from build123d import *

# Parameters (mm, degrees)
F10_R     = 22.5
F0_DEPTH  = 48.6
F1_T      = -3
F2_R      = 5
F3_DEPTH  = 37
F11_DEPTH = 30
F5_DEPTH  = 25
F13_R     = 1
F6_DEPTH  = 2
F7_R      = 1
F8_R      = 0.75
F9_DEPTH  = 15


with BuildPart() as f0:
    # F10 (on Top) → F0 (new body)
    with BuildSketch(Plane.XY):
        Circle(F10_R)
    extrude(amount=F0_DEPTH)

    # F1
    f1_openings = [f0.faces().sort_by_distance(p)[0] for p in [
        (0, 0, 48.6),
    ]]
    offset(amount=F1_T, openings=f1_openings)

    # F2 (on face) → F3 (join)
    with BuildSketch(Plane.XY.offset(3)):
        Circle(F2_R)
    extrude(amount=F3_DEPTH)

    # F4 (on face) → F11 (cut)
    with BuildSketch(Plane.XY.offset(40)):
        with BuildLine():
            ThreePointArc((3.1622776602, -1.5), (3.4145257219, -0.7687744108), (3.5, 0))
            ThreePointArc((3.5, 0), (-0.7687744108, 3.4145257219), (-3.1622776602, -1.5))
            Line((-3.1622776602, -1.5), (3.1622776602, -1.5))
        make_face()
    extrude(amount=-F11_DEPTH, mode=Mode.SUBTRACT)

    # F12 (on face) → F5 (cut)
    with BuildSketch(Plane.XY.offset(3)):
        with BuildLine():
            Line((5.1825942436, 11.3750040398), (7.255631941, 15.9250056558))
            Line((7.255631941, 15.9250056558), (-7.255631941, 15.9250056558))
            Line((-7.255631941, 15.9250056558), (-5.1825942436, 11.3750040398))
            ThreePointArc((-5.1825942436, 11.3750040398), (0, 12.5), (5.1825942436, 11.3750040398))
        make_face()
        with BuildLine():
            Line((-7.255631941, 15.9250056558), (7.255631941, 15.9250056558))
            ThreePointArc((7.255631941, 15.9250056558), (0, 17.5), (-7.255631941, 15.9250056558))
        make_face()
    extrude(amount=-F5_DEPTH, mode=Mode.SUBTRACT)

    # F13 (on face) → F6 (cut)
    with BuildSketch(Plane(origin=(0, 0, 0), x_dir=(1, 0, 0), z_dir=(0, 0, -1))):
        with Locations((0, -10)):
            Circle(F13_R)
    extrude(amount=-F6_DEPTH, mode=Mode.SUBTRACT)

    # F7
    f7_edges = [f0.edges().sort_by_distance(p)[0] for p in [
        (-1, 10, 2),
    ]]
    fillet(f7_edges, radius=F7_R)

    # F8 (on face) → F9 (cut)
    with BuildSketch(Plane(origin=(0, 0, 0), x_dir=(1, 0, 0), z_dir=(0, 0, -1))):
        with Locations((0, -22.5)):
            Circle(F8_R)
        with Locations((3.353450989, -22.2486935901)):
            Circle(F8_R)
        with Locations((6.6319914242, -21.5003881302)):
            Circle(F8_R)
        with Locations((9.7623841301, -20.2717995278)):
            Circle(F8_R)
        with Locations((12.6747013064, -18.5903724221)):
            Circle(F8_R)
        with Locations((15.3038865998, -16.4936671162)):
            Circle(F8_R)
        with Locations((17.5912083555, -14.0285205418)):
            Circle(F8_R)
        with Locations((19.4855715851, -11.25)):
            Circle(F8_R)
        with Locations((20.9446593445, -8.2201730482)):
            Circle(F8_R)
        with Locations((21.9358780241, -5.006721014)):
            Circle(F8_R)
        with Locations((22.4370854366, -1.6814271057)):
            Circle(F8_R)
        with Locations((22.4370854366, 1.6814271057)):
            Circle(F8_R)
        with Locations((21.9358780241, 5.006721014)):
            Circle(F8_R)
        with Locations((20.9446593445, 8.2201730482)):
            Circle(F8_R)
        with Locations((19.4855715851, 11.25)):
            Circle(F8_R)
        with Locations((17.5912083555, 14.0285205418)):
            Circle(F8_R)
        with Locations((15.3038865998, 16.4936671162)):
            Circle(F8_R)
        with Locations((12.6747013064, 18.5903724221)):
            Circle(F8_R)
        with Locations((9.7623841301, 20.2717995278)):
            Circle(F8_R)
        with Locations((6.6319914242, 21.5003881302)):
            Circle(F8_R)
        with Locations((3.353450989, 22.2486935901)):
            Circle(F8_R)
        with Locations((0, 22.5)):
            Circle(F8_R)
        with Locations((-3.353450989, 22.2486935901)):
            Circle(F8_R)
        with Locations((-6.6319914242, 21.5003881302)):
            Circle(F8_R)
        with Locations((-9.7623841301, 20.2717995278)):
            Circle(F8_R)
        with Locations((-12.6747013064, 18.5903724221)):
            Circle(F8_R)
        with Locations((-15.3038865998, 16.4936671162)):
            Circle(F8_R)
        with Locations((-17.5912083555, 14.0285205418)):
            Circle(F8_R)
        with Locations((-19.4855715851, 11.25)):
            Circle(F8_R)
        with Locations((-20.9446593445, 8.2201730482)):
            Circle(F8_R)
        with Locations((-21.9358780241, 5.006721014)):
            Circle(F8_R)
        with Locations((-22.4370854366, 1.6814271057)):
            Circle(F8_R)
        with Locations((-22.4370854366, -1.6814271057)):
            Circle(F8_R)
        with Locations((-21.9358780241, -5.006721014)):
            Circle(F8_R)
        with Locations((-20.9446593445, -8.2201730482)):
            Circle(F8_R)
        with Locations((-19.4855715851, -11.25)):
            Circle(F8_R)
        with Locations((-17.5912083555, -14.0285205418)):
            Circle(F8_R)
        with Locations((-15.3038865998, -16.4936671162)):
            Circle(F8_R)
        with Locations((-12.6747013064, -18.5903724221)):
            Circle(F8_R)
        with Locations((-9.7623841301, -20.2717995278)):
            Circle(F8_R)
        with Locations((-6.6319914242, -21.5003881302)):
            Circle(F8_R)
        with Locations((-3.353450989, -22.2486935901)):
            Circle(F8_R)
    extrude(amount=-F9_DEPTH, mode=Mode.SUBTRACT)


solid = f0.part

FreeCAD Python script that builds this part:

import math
import FreeCAD as App
import Part
import Sketcher
from FreeCAD import Vector
Q = App.Units.Quantity


def edges_at(feature, points):
    """Names of the edges that pass closest to the given points."""
    edges = feature.Shape.Edges
    near = lambda p: min(range(len(edges)), key=lambda i: edges[i].distToShape(Part.Vertex(*p))[0])
    return sorted({f"Edge{near(p) + 1}" for p in points})


def faces_at(feature, points):
    """Names of the faces that lie closest to the given points."""
    faces = feature.Shape.Faces
    near = lambda p: min(range(len(faces)), key=lambda i: faces[i].distToShape(Part.Vertex(*p))[0])
    return sorted({f"Face{near(p) + 1}" for p in points})

doc = App.newDocument("Part")
body = doc.addObject("PartDesign::Body", "Body")

sketch1 = body.newObject("Sketcher::SketchObject", "Sketch")
sketch1.AttachmentSupport = (doc.getObject("XY_Plane"), [""])
sketch1.MapMode = "FlatFace"
sketch1.addGeometry(Part.Circle(Vector(0, 0, 0), Vector(0, 0, 1), 22.5), False)
sketch1.addConstraint(Sketcher.Constraint("Coincident", 0, 3, -1, 1))
sketch1.addConstraint(Sketcher.Constraint("Diameter", 0, Q("45 mm")))
pad1 = body.newObject("PartDesign::Pad", "Pad")
pad1.Profile = sketch1
pad1.Length = 48.6
doc.recompute()

thickness = body.newObject("PartDesign::Thickness", "Thickness")
thickness.Base = (pad1, faces_at(pad1, [(0, 0, 48.6)]))
thickness.Value = 3
thickness.Reversed = True
thickness.Join = "Arc"

sketch2 = body.newObject("Sketcher::SketchObject", "Sketch001")
sketch2.AttachmentSupport = (doc.getObject("XY_Plane"), [""])
sketch2.MapMode = "FlatFace"
sketch2.AttachmentOffset = App.Placement(Vector(0, 0, 3), App.Rotation())
sketch2.addGeometry(Part.Circle(Vector(0, 0, 0), Vector(0, 0, 1), 5), False)
sketch2.addConstraint(Sketcher.Constraint("Coincident", 0, 3, -1, 1))
sketch2.addConstraint(Sketcher.Constraint("Diameter", 0, Q("10 mm")))
pad2 = body.newObject("PartDesign::Pad", "Pad001")
pad2.Profile = sketch2
pad2.Length = 37

sketch3 = body.newObject("Sketcher::SketchObject", "Sketch002")
sketch3.AttachmentSupport = (doc.getObject("XY_Plane"), [""])
sketch3.MapMode = "FlatFace"
sketch3.AttachmentOffset = App.Placement(Vector(0, 0, 40), App.Rotation())
sketch3.addGeometry(Part.ArcOfCircle(Part.Circle(Vector(0, 0, 0), Vector(0, 0, 1), 3.5), math.radians(-25.376934), math.radians(0)), False)
sketch3.addGeometry(Part.ArcOfCircle(Part.Circle(Vector(0, 0, 0), Vector(0, 0, 1), 3.5), math.radians(0), math.radians(205.376934)), False)
sketch3.addGeometry(Part.LineSegment(Vector(-3.162278, -1.5, 0), Vector(3.162278, -1.5, 0)), False)
sketch3.addConstraint(Sketcher.Constraint("Tangent", 0, 2, 1, 1))
sketch3.addConstraint(Sketcher.Constraint("Coincident", 1, 2, 2, 1))
sketch3.addConstraint(Sketcher.Constraint("Coincident", 2, 2, 0, 1))
sketch3.addConstraint(Sketcher.Constraint("Horizontal", 2))
sketch3.addConstraint(Sketcher.Constraint("Coincident", 0, 3, -1, 1))
sketch3.addConstraint(Sketcher.Constraint("Equal", 0, 1))
sketch3.addConstraint(Sketcher.Constraint("PointOnObject", 0, 2, -1))
sketch3.addConstraint(Sketcher.Constraint("Radius", 0, Q("3.5 mm")))
sketch3.addConstraint(Sketcher.Constraint("DistanceY", 1, 2, -1, 1, Q("1.5 mm")))
pocket1 = body.newObject("PartDesign::Pocket", "Pocket")
pocket1.Profile = sketch3
pocket1.Length = 30

sketch4 = body.newObject("Sketcher::SketchObject", "Sketch003")
sketch4.AttachmentSupport = (doc.getObject("XY_Plane"), [""])
sketch4.MapMode = "FlatFace"
sketch4.AttachmentOffset = App.Placement(Vector(0, 0, 3), App.Rotation())
sketch4.addGeometry(Part.LineSegment(Vector(5.182594, 11.375004, 0), Vector(7.255632, 15.925006, 0)), False)
sketch4.addGeometry(Part.ArcOfCircle(Part.Circle(Vector(0, 0, 0), Vector(0, 0, 1), 17.5), math.radians(65.505396), math.radians(114.494604)), False)
sketch4.addGeometry(Part.LineSegment(Vector(-7.255632, 15.925006, 0), Vector(-5.182594, 11.375004, 0)), False)
sketch4.addGeometry(Part.ArcOfCircle(Part.Circle(Vector(0, 0, 0), Vector(0, 0, 1), 12.5), math.radians(65.505396), math.radians(114.494604)), False)
sketch4.addConstraint(Sketcher.Constraint("Coincident", 0, 2, 1, 1))
sketch4.addConstraint(Sketcher.Constraint("Coincident", 1, 2, 2, 1))
sketch4.addConstraint(Sketcher.Constraint("Coincident", 2, 2, 3, 2))
sketch4.addConstraint(Sketcher.Constraint("Coincident", 3, 1, 0, 1))
sketch4.addConstraint(Sketcher.Constraint("Coincident", 1, 3, -1, 1))
sketch4.addConstraint(Sketcher.Constraint("Coincident", 3, 3, -1, 1))
sketch4.addConstraint(Sketcher.Constraint("Horizontal", 0, 2, 1, 2))
sketch4.addConstraint(Sketcher.Constraint("Horizontal", 2, 2, 3, 1))
sketch4.addConstraint(Sketcher.Constraint("Radius", 1, Q("17.5 mm")))
sketch4.addConstraint(Sketcher.Constraint("Radius", 3, Q("12.5 mm")))
sketch4.addConstraint(Sketcher.Constraint("DistanceY", 2, 2, 1, 2, Q("4.550002 mm")))
sketch4.addConstraint(Sketcher.Constraint("DistanceX", -1, 1, 0, 2, Q("7.255632 mm")))
pocket2 = body.newObject("PartDesign::Pocket", "Pocket001")
pocket2.Profile = sketch4
pocket2.Length = 25

sketch5 = body.newObject("Sketcher::SketchObject", "Sketch004")
sketch5.AttachmentSupport = (doc.getObject("XY_Plane"), [""])
sketch5.MapMode = "FlatFace"
sketch5.addGeometry(Part.Circle(Vector(0, 10, 0), Vector(0, 0, 1), 1), False)
sketch5.addConstraint(Sketcher.Constraint("PointOnObject", 0, 3, -2))
sketch5.addConstraint(Sketcher.Constraint("Diameter", 0, Q("2 mm")))
sketch5.addConstraint(Sketcher.Constraint("DistanceY", -1, 1, 0, 3, Q("10 mm")))
pocket3 = body.newObject("PartDesign::Pocket", "Pocket002")
pocket3.Profile = sketch5
pocket3.Length = 2
pocket3.Reversed = True
doc.recompute()

fillet = body.newObject("PartDesign::Fillet", "Fillet")
fillet.Base = (pocket3, edges_at(pocket3, [(-1, 10, 2)]))
fillet.Radius = 1

sketch6 = body.newObject("Sketcher::SketchObject", "Sketch005")
sketch6.AttachmentSupport = (doc.getObject("XY_Plane"), [""])
sketch6.MapMode = "FlatFace"
sketch6.addGeometry(Part.Circle(Vector(0, 22.5, 0), Vector(0, 0, 1), 0.75), False)
sketch6.addGeometry(Part.Circle(Vector(3.353451, 22.248694, 0), Vector(0, 0, 1), 0.75), False)
sketch6.addGeometry(Part.Circle(Vector(6.631991, 21.500388, 0), Vector(0, 0, 1), 0.75), False)
sketch6.addGeometry(Part.Circle(Vector(9.762384, 20.2718, 0), Vector(0, 0, 1), 0.75), False)
sketch6.addGeometry(Part.Circle(Vector(12.674701, 18.590372, 0), Vector(0, 0, 1), 0.75), False)
sketch6.addGeometry(Part.Circle(Vector(15.303887, 16.493667, 0), Vector(0, 0, 1), 0.75), False)
sketch6.addGeometry(Part.Circle(Vector(17.591208, 14.028521, 0), Vector(0, 0, 1), 0.75), False)
sketch6.addGeometry(Part.Circle(Vector(19.485572, 11.25, 0), Vector(0, 0, 1), 0.75), False)
sketch6.addGeometry(Part.Circle(Vector(20.944659, 8.220173, 0), Vector(0, 0, 1), 0.75), False)
sketch6.addGeometry(Part.Circle(Vector(21.935878, 5.006721, 0), Vector(0, 0, 1), 0.75), False)
sketch6.addGeometry(Part.Circle(Vector(22.437085, 1.681427, 0), Vector(0, 0, 1), 0.75), False)
sketch6.addGeometry(Part.Circle(Vector(22.437085, -1.681427, 0), Vector(0, 0, 1), 0.75), False)
sketch6.addGeometry(Part.Circle(Vector(21.935878, -5.006721, 0), Vector(0, 0, 1), 0.75), False)
sketch6.addGeometry(Part.Circle(Vector(20.944659, -8.220173, 0), Vector(0, 0, 1), 0.75), False)
sketch6.addGeometry(Part.Circle(Vector(19.485572, -11.25, 0), Vector(0, 0, 1), 0.75), False)
sketch6.addGeometry(Part.Circle(Vector(17.591208, -14.028521, 0), Vector(0, 0, 1), 0.75), False)
sketch6.addGeometry(Part.Circle(Vector(15.303887, -16.493667, 0), Vector(0, 0, 1), 0.75), False)
sketch6.addGeometry(Part.Circle(Vector(12.674701, -18.590372, 0), Vector(0, 0, 1), 0.75), False)
sketch6.addGeometry(Part.Circle(Vector(9.762384, -20.2718, 0), Vector(0, 0, 1), 0.75), False)
sketch6.addGeometry(Part.Circle(Vector(6.631991, -21.500388, 0), Vector(0, 0, 1), 0.75), False)
sketch6.addGeometry(Part.Circle(Vector(3.353451, -22.248694, 0), Vector(0, 0, 1), 0.75), False)
sketch6.addGeometry(Part.Circle(Vector(0, -22.5, 0), Vector(0, 0, 1), 0.75), False)
sketch6.addGeometry(Part.Circle(Vector(-3.353451, -22.248694, 0), Vector(0, 0, 1), 0.75), False)
sketch6.addGeometry(Part.Circle(Vector(-6.631991, -21.500388, 0), Vector(0, 0, 1), 0.75), False)
sketch6.addGeometry(Part.Circle(Vector(-9.762384, -20.2718, 0), Vector(0, 0, 1), 0.75), False)
sketch6.addGeometry(Part.Circle(Vector(-12.674701, -18.590372, 0), Vector(0, 0, 1), 0.75), False)
sketch6.addGeometry(Part.Circle(Vector(-15.303887, -16.493667, 0), Vector(0, 0, 1), 0.75), False)
sketch6.addGeometry(Part.Circle(Vector(-17.591208, -14.028521, 0), Vector(0, 0, 1), 0.75), False)
sketch6.addGeometry(Part.Circle(Vector(-19.485572, -11.25, 0), Vector(0, 0, 1), 0.75), False)
sketch6.addGeometry(Part.Circle(Vector(-20.944659, -8.220173, 0), Vector(0, 0, 1), 0.75), False)
sketch6.addGeometry(Part.Circle(Vector(-21.935878, -5.006721, 0), Vector(0, 0, 1), 0.75), False)
sketch6.addGeometry(Part.Circle(Vector(-22.437085, -1.681427, 0), Vector(0, 0, 1), 0.75), False)
sketch6.addGeometry(Part.Circle(Vector(-22.437085, 1.681427, 0), Vector(0, 0, 1), 0.75), False)
sketch6.addGeometry(Part.Circle(Vector(-21.935878, 5.006721, 0), Vector(0, 0, 1), 0.75), False)
sketch6.addGeometry(Part.Circle(Vector(-20.944659, 8.220173, 0), Vector(0, 0, 1), 0.75), False)
sketch6.addGeometry(Part.Circle(Vector(-19.485572, 11.25, 0), Vector(0, 0, 1), 0.75), False)
sketch6.addGeometry(Part.Circle(Vector(-17.591208, 14.028521, 0), Vector(0, 0, 1), 0.75), False)
sketch6.addGeometry(Part.Circle(Vector(-15.303887, 16.493667, 0), Vector(0, 0, 1), 0.75), False)
sketch6.addGeometry(Part.Circle(Vector(-12.674701, 18.590372, 0), Vector(0, 0, 1), 0.75), False)
sketch6.addGeometry(Part.Circle(Vector(-9.762384, 20.2718, 0), Vector(0, 0, 1), 0.75), False)
sketch6.addGeometry(Part.Circle(Vector(-6.631991, 21.500388, 0), Vector(0, 0, 1), 0.75), False)
sketch6.addGeometry(Part.Circle(Vector(-3.353451, 22.248694, 0), Vector(0, 0, 1), 0.75), False)
sketch6.addConstraint(Sketcher.Constraint("Equal", 0, 1))
sketch6.addConstraint(Sketcher.Constraint("Equal", 1, 2))
sketch6.addConstraint(Sketcher.Constraint("Equal", 2, 3))
sketch6.addConstraint(Sketcher.Constraint("Equal", 3, 4))
sketch6.addConstraint(Sketcher.Constraint("Equal", 4, 5))
sketch6.addConstraint(Sketcher.Constraint("Equal", 5, 6))
sketch6.addConstraint(Sketcher.Constraint("Equal", 6, 7))
sketch6.addConstraint(Sketcher.Constraint("Equal", 7, 8))
sketch6.addConstraint(Sketcher.Constraint("Equal", 8, 9))
sketch6.addConstraint(Sketcher.Constraint("Equal", 9, 10))
sketch6.addConstraint(Sketcher.Constraint("Equal", 10, 11))
sketch6.addConstraint(Sketcher.Constraint("Equal", 11, 12))
sketch6.addConstraint(Sketcher.Constraint("Equal", 12, 13))
sketch6.addConstraint(Sketcher.Constraint("Equal", 13, 14))
sketch6.addConstraint(Sketcher.Constraint("Equal", 14, 15))
sketch6.addConstraint(Sketcher.Constraint("Equal", 15, 16))
sketch6.addConstraint(Sketcher.Constraint("Equal", 16, 17))
sketch6.addConstraint(Sketcher.Constraint("Equal", 17, 18))
sketch6.addConstraint(Sketcher.Constraint("Equal", 18, 19))
sketch6.addConstraint(Sketcher.Constraint("Equal", 19, 20))
sketch6.addConstraint(Sketcher.Constraint("Equal", 20, 21))
sketch6.addConstraint(Sketcher.Constraint("Equal", 21, 22))
sketch6.addConstraint(Sketcher.Constraint("Equal", 22, 23))
sketch6.addConstraint(Sketcher.Constraint("Equal", 23, 24))
sketch6.addConstraint(Sketcher.Constraint("Equal", 24, 25))
sketch6.addConstraint(Sketcher.Constraint("Equal", 25, 26))
sketch6.addConstraint(Sketcher.Constraint("Equal", 26, 27))
sketch6.addConstraint(Sketcher.Constraint("Equal", 27, 28))
sketch6.addConstraint(Sketcher.Constraint("Equal", 28, 29))
sketch6.addConstraint(Sketcher.Constraint("Equal", 29, 30))
sketch6.addConstraint(Sketcher.Constraint("Equal", 30, 31))
sketch6.addConstraint(Sketcher.Constraint("Equal", 31, 32))
sketch6.addConstraint(Sketcher.Constraint("Equal", 32, 33))
sketch6.addConstraint(Sketcher.Constraint("Equal", 33, 34))
sketch6.addConstraint(Sketcher.Constraint("Equal", 34, 35))
sketch6.addConstraint(Sketcher.Constraint("Equal", 35, 36))
sketch6.addConstraint(Sketcher.Constraint("Equal", 36, 37))
sketch6.addConstraint(Sketcher.Constraint("Equal", 37, 38))
sketch6.addConstraint(Sketcher.Constraint("Equal", 38, 39))
sketch6.addConstraint(Sketcher.Constraint("Equal", 39, 40))
sketch6.addConstraint(Sketcher.Constraint("Equal", 40, 41))
sketch6.addConstraint(Sketcher.Constraint("Symmetric", 0, 3, 21, 3, -1, 1))
sketch6.addConstraint(Sketcher.Constraint("Symmetric", 1, 3, 22, 3, -1, 1))
sketch6.addConstraint(Sketcher.Constraint("Symmetric", 2, 3, 23, 3, -1, 1))
sketch6.addConstraint(Sketcher.Constraint("Symmetric", 3, 3, 24, 3, -1, 1))
sketch6.addConstraint(Sketcher.Constraint("Symmetric", 4, 3, 25, 3, -1, 1))
sketch6.addConstraint(Sketcher.Constraint("Symmetric", 5, 3, 26, 3, -1, 1))
sketch6.addConstraint(Sketcher.Constraint("Symmetric", 6, 3, 27, 3, -1, 1))
sketch6.addConstraint(Sketcher.Constraint("Symmetric", 7, 3, 28, 3, -1, 1))
sketch6.addConstraint(Sketcher.Constraint("Symmetric", 8, 3, 29, 3, -1, 1))
sketch6.addConstraint(Sketcher.Constraint("Symmetric", 9, 3, 30, 3, -1, 1))
sketch6.addConstraint(Sketcher.Constraint("Symmetric", 10, 3, 31, 3, -1, 1))
sketch6.addConstraint(Sketcher.Constraint("Symmetric", 11, 3, 32, 3, -1, 1))
sketch6.addConstraint(Sketcher.Constraint("Symmetric", 12, 3, 33, 3, -1, 1))
sketch6.addConstraint(Sketcher.Constraint("Symmetric", 13, 3, 34, 3, -1, 1))
sketch6.addConstraint(Sketcher.Constraint("Symmetric", 14, 3, 35, 3, -1, 1))
sketch6.addConstraint(Sketcher.Constraint("Symmetric", 15, 3, 36, 3, -1, 1))
sketch6.addConstraint(Sketcher.Constraint("Symmetric", 16, 3, 37, 3, -1, 1))
sketch6.addConstraint(Sketcher.Constraint("Symmetric", 17, 3, 38, 3, -1, 1))
sketch6.addConstraint(Sketcher.Constraint("Symmetric", 18, 3, 39, 3, -1, 1))
sketch6.addConstraint(Sketcher.Constraint("Symmetric", 19, 3, 40, 3, -1, 1))
sketch6.addConstraint(Sketcher.Constraint("Symmetric", 20, 3, 41, 3, -1, 1))
sketch6.addConstraint(Sketcher.Constraint("Symmetric", 20, 3, 22, 3, -2))
sketch6.addConstraint(Sketcher.Constraint("Symmetric", 19, 3, 23, 3, -2))
sketch6.addConstraint(Sketcher.Constraint("Symmetric", 18, 3, 24, 3, -2))
sketch6.addConstraint(Sketcher.Constraint("Symmetric", 17, 3, 25, 3, -2))
sketch6.addConstraint(Sketcher.Constraint("Symmetric", 16, 3, 26, 3, -2))
sketch6.addConstraint(Sketcher.Constraint("Symmetric", 15, 3, 27, 3, -2))
sketch6.addConstraint(Sketcher.Constraint("Symmetric", 14, 3, 28, 3, -2))
sketch6.addConstraint(Sketcher.Constraint("Symmetric", 13, 3, 29, 3, -2))
sketch6.addConstraint(Sketcher.Constraint("Symmetric", 12, 3, 30, 3, -2))
sketch6.addConstraint(Sketcher.Constraint("Symmetric", 11, 3, 31, 3, -2))
sketch6.addConstraint(Sketcher.Constraint("PointOnObject", 0, 3, -2))
sketch6.addConstraint(Sketcher.Constraint("Diameter", 0, Q("1.5 mm")))
sketch6.addConstraint(Sketcher.Constraint("DistanceY", -1, 1, 0, 3, Q("22.5 mm")))
sketch6.addConstraint(Sketcher.Constraint("DistanceY", -1, 1, 7, 3, Q("11.25 mm")))
sketch6.addConstraint(Sketcher.Constraint("DistanceY", -1, 1, 3, 3, Q("20.2718 mm")))
sketch6.addConstraint(Sketcher.Constraint("DistanceX", -1, 1, 4, 3, Q("12.674701 mm")))
sketch6.addConstraint(Sketcher.Constraint("DistanceY", 8, 3, 4, 3, Q("10.370199 mm")))
sketch6.addConstraint(Sketcher.Constraint("DistanceY", 9, 3, 6, 3, Q("9.0218 mm")))
sketch6.addConstraint(Sketcher.Constraint("DistanceX", 5, 3, 10, 3, Q("7.133199 mm")))
sketch6.addConstraint(Sketcher.Constraint("DistanceY", 11, 3, 8, 3, Q("9.9016 mm")))
sketch6.addConstraint(Sketcher.Constraint("DistanceX", 22, 3, 20, 3, Q("6.706902 mm")))
sketch6.addConstraint(Sketcher.Constraint("DistanceX", -1, 1, 2, 3, Q("6.631991 mm")))
sketch6.addConstraint(Sketcher.Constraint("DistanceY", -1, 1, 2, 3, Q("21.500388 mm")))
sketch6.addConstraint(Sketcher.Constraint("DistanceX", -1, 1, 6, 3, Q("17.591208 mm")))
sketch6.addConstraint(Sketcher.Constraint("DistanceY", -1, 1, 6, 3, Q("14.028521 mm")))
sketch6.addConstraint(Sketcher.Constraint("DistanceX", -1, 1, 7, 3, Q("19.485572 mm")))
sketch6.addConstraint(Sketcher.Constraint("DistanceX", -1, 1, 8, 3, Q("20.944659 mm")))
sketch6.addConstraint(Sketcher.Constraint("DistanceX", -1, 1, 9, 3, Q("21.935878 mm")))
sketch6.addConstraint(Sketcher.Constraint("DistanceY", 4, 3, 1, 3, Q("3.658321 mm")))
sketch6.addConstraint(Sketcher.Constraint("DistanceY", 5, 3, 2, 3, Q("5.006721 mm")))
sketch6.addConstraint(Sketcher.Constraint("DistanceX", 5, 3, 6, 3, Q("2.287322 mm")))
sketch6.addConstraint(Sketcher.Constraint("DistanceY", 6, 3, 4, 3, Q("4.561852 mm")))
sketch6.addConstraint(Sketcher.Constraint("DistanceX", -1, 1, 3, 3, Q("9.762384 mm")))
pocket4 = body.newObject("PartDesign::Pocket", "Pocket003")
pocket4.Profile = sketch6
pocket4.Length = 15
pocket4.Reversed = True

doc.recompute()
